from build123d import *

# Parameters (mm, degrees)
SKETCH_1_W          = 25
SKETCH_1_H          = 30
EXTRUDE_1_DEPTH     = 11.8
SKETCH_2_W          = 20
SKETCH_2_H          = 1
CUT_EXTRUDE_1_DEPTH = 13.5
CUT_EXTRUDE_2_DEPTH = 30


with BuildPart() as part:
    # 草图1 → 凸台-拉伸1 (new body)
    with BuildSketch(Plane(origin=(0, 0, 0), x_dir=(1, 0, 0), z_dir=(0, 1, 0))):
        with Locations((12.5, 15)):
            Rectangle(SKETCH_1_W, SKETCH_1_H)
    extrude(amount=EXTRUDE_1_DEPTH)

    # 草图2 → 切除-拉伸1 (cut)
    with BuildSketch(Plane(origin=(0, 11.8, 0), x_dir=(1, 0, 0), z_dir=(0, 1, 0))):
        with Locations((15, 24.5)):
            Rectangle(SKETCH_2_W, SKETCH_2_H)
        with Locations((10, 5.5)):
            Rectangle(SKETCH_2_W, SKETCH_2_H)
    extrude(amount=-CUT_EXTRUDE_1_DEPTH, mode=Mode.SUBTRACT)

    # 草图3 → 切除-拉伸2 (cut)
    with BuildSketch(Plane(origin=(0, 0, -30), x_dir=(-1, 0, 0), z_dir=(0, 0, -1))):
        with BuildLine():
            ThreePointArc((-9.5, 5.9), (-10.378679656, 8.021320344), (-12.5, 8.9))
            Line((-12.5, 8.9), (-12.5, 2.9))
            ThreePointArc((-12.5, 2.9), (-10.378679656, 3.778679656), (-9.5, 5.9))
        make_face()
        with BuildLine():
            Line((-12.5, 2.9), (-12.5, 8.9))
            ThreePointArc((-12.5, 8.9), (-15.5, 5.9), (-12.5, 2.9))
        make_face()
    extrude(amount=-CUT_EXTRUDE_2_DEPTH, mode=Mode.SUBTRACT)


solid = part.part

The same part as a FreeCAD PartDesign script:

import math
import FreeCAD as App
import Part
import Sketcher

V = App.Vector
Q = App.Units.Quantity


def add_polygon(sketch, points):
    """Adds a closed chain of lines whose ends are joined by coincident constraints."""
    first, n = sketch.GeometryCount, len(points)
    for a, b in zip(points, points[1:] + points[:1]):
        sketch.addGeometry(Part.LineSegment(App.Vector(*a, 0), App.Vector(*b, 0)), False)
    for i in range(n):
        sketch.addConstraint(Sketcher.Constraint("Coincident", first + i, 2, first + (i + 1) % n, 1))

doc = App.newDocument("Part")
body = doc.addObject("PartDesign::Body", "Body")

sketch1 = body.newObject("Sketcher::SketchObject", "Sketch")
sketch1.AttachmentSupport = (doc.getObject("XZ_Plane"), [""])
sketch1.MapMode = "FlatFace"
add_polygon(sketch1, [(0, -30), (0, 0), (25, 0), (25, -30)])
sketch1.addConstraint([
    Sketcher.Constraint("Vertical", 0),
    Sketcher.Constraint("Horizontal", 1),
    Sketcher.Constraint("Vertical", 2),
    Sketcher.Constraint("Horizontal", 3),
    Sketcher.Constraint("Coincident", 0, 2, -1, 1),
    Sketcher.Constraint("DistanceX", 1, 1, 1, 2, Q("25 mm")),
    Sketcher.Constraint("DistanceY", 0, 1, 0, 2, Q("30 mm")),
])
pad1 = body.newObject("PartDesign::Pad", "Pad")
pad1.Profile = sketch1
pad1.Length = 11.8
pad1.Reversed = True

sketch2 = body.newObject("Sketcher::SketchObject", "Sketch001")
sketch2.AttachmentSupport = (doc.getObject("XZ_Plane"), [""])
sketch2.MapMode = "FlatFace"
sketch2.AttachmentOffset = App.Placement(V(0, 0, -11.8), App.Rotation())
add_polygon(sketch2, [(5, -25), (5, -24), (25, -24), (25, -25)])
add_polygon(sketch2, [(0, -6), (0, -5), (20, -5), (20, -6)])
sketch2.addConstraint([
    Sketcher.Constraint("Vertical", 0),
    Sketcher.Constraint("Horizontal", 1),
    Sketcher.Constraint("Vertical", 2),
    Sketcher.Constraint("Horizontal", 3),
    Sketcher.Constraint("Vertical", 4),
    Sketcher.Constraint("Horizontal", 5),
    Sketcher.Constraint("Vertical", 6),
    Sketcher.Constraint("Horizontal", 7),
    Sketcher.Constraint("PointOnObject", 4, 2, -2),
    Sketcher.Constraint("Equal", 3, 5),
    Sketcher.Constraint("Equal", 2, 4),
    Sketcher.Constraint("DistanceX", 1, 1, 1, 2, Q("20 mm")),
    Sketcher.Constraint("DistanceY", 0, 1, 0, 2, Q("1 mm")),
    Sketcher.Constraint("DistanceX", -1, 1, 0, 2, Q("5 mm")),
    Sketcher.Constraint("DistanceY", 0, 2, -1, 1, Q("24 mm")),
    Sketcher.Constraint("DistanceY", 4, 2, -1, 1, Q("5 mm")),
])
pocket1 = body.newObject("PartDesign::Pocket", "Pocket")
pocket1.Profile = sketch2
pocket1.Length = 13.5
pocket1.Reversed = True

sketch3 = body.newObject("Sketcher::SketchObject", "Sketch002")
sketch3.AttachmentSupport = (doc.getObject("XY_Plane"), [""])
sketch3.MapMode = "FlatFace"
sketch3.AttachmentOffset = App.Placement(V(0, 0, -30), App.Rotation())
sketch3.addGeometry([
    Part.ArcOfCircle(Part.Circle(V(12.5, 5.9, 0), V(0, 0, 1), 3), math.radians(90), math.radians(180)),
    Part.ArcOfCircle(Part.Circle(V(12.5, 5.9, 0), V(0, 0, 1), 3), math.radians(-90), math.radians(90)),
    Part.ArcOfCircle(Part.Circle(V(12.5, 5.9, 0), V(0, 0, 1), 3), math.radians(180), math.radians(270)),
], False)
sketch3.addConstraint([
    Sketcher.Constraint("Tangent", 0, 1, 1, 2),
    Sketcher.Constraint("Tangent", 1, 1, 2, 2),
    Sketcher.Constraint("Tangent", 2, 1, 0, 2),
    Sketcher.Constraint("Horizontal", 1, 3, 2, 1),
    Sketcher.Constraint("Vertical", 2, 3, 0, 1),
    Sketcher.Constraint("Vertical", 0, 1, 1, 1),
    Sketcher.Constraint("Radius", 0, Q("3 mm")),
    Sketcher.Constraint("DistanceX", -1, 1, 0, 3, Q("12.5 mm")),
    Sketcher.Constraint("DistanceY", -1, 1, 0, 3, Q("5.9 mm")),
])
pocket2 = body.newObject("PartDesign::Pocket", "Pocket001")
pocket2.Profile = sketch3
pocket2.Length = 30
pocket2.Reversed = True

doc.recompute()
